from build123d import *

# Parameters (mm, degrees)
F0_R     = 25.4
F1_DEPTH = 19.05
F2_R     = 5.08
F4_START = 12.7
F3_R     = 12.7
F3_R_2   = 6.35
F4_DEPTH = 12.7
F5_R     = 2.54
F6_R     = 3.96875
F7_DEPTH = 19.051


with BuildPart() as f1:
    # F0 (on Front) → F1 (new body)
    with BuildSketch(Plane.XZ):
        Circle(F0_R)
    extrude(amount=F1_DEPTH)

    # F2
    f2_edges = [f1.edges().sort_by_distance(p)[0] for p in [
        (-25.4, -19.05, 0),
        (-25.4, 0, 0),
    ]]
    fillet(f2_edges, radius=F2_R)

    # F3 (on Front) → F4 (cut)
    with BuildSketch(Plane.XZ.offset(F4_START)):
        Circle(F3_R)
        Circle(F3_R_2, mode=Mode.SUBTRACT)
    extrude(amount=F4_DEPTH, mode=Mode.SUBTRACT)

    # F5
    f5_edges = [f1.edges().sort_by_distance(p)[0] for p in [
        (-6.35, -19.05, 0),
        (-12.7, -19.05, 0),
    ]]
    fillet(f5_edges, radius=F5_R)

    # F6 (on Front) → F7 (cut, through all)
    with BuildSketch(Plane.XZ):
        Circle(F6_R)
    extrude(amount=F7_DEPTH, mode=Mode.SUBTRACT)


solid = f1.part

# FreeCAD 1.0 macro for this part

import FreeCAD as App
import Part
import Sketcher
from FreeCAD import Vector
Q = App.Units.Quantity


def edges_at(feature, points):
    """Names of the edges that pass closest to the given points."""
    edges = feature.Shape.Edges
    near = lambda p: min(range(len(edges)), key=lambda i: edges[i].distToShape(Part.Vertex(*p))[0])
    return sorted({f"Edge{near(p) + 1}" for p in points})

doc = App.newDocument("Part")
body = doc.addObject("PartDesign::Body", "Body")

# Sketch on XZ plane
sketch1 = body.newObject("Sketcher::SketchObject", "Sketch")
sketch1.AttachmentSupport = (doc.getObject("XZ_Plane"), [""])
sketch1.MapMode = "FlatFace"
sketch1.addGeometry(Part.Circle(Vector(0, 0, 0), Vector(0, 0, 1), 25), False)
sketch1.addConstraint([
    Sketcher.Constraint("Coincident", 0, 3, -1, 1),
    Sketcher.Constraint("Diameter", 0, Q("2 in")),
])
pad1 = body.newObject("PartDesign::Pad", "Pad")
pad1.Profile = sketch1
pad1.Length = Q("0.75 in")
doc.recompute()

fillet = body.newObject("PartDesign::Fillet", "Fillet")
fillet.Base = (pad1, edges_at(pad1, [(-25.4, -19.05, 0), (-25.4, 0, 0)]))
fillet.Radius = Q("0.2 in")

# Sketch on XZ plane
sketch2 = body.newObject("Sketcher::SketchObject", "Sketch001")
sketch2.AttachmentSupport = (doc.getObject("XZ_Plane"), [""])
sketch2.MapMode = "FlatFace"
sketch2.AttachmentOffset = App.Placement(Vector(0, 0, 0.5 * 25.4), App.Rotation())
sketch2.addGeometry([
    Part.Circle(Vector(0, 0, 0), Vector(0, 0, 1), 13),
    Part.Circle(Vector(0, 0, 0), Vector(0, 0, 1), 6),
], False)
sketch2.addConstraint([
    Sketcher.Constraint("Coincident", 0, 3, -1, 1),
    Sketcher.Constraint("Coincident", 1, 3, -1, 1),
    Sketcher.Constraint("Diameter", 0, Q("1 in")),
    Sketcher.Constraint("Diameter", 1, Q("0.5 in")),
])
pocket1 = body.newObject("PartDesign::Pocket", "Pocket")
pocket1.Profile = sketch2
pocket1.Length = Q("0.5 in")
pocket1.Reversed = True
doc.recompute()

fillet2 = body.newObject("PartDesign::Fillet", "Fillet001")
fillet2.Base = (pocket1, edges_at(pocket1, [(-6.35, -19.05, 0), (-12.7, -19.05, 0)]))
fillet2.Radius = Q("0.1 in")

# Sketch on XZ plane
sketch3 = body.newObject("Sketcher::SketchObject", "Sketch002")
sketch3.AttachmentSupport = (doc.getObject("XZ_Plane"), [""])
sketch3.MapMode = "FlatFace"
sketch3.addGeometry(Part.Circle(Vector(0, 0, 0), Vector(0, 0, 1), 4), False)
sketch3.addConstraint([
    Sketcher.Constraint("Coincident", 0, 3, -1, 1),
    Sketcher.Constraint("Diameter", 0, Q("0.3125 in")),
])
pocket2 = body.newObject("PartDesign::Pocket", "Pocket001")
pocket2.Profile = sketch3
pocket2.Type = "ThroughAll"
pocket2.Reversed = True

doc.recompute()
